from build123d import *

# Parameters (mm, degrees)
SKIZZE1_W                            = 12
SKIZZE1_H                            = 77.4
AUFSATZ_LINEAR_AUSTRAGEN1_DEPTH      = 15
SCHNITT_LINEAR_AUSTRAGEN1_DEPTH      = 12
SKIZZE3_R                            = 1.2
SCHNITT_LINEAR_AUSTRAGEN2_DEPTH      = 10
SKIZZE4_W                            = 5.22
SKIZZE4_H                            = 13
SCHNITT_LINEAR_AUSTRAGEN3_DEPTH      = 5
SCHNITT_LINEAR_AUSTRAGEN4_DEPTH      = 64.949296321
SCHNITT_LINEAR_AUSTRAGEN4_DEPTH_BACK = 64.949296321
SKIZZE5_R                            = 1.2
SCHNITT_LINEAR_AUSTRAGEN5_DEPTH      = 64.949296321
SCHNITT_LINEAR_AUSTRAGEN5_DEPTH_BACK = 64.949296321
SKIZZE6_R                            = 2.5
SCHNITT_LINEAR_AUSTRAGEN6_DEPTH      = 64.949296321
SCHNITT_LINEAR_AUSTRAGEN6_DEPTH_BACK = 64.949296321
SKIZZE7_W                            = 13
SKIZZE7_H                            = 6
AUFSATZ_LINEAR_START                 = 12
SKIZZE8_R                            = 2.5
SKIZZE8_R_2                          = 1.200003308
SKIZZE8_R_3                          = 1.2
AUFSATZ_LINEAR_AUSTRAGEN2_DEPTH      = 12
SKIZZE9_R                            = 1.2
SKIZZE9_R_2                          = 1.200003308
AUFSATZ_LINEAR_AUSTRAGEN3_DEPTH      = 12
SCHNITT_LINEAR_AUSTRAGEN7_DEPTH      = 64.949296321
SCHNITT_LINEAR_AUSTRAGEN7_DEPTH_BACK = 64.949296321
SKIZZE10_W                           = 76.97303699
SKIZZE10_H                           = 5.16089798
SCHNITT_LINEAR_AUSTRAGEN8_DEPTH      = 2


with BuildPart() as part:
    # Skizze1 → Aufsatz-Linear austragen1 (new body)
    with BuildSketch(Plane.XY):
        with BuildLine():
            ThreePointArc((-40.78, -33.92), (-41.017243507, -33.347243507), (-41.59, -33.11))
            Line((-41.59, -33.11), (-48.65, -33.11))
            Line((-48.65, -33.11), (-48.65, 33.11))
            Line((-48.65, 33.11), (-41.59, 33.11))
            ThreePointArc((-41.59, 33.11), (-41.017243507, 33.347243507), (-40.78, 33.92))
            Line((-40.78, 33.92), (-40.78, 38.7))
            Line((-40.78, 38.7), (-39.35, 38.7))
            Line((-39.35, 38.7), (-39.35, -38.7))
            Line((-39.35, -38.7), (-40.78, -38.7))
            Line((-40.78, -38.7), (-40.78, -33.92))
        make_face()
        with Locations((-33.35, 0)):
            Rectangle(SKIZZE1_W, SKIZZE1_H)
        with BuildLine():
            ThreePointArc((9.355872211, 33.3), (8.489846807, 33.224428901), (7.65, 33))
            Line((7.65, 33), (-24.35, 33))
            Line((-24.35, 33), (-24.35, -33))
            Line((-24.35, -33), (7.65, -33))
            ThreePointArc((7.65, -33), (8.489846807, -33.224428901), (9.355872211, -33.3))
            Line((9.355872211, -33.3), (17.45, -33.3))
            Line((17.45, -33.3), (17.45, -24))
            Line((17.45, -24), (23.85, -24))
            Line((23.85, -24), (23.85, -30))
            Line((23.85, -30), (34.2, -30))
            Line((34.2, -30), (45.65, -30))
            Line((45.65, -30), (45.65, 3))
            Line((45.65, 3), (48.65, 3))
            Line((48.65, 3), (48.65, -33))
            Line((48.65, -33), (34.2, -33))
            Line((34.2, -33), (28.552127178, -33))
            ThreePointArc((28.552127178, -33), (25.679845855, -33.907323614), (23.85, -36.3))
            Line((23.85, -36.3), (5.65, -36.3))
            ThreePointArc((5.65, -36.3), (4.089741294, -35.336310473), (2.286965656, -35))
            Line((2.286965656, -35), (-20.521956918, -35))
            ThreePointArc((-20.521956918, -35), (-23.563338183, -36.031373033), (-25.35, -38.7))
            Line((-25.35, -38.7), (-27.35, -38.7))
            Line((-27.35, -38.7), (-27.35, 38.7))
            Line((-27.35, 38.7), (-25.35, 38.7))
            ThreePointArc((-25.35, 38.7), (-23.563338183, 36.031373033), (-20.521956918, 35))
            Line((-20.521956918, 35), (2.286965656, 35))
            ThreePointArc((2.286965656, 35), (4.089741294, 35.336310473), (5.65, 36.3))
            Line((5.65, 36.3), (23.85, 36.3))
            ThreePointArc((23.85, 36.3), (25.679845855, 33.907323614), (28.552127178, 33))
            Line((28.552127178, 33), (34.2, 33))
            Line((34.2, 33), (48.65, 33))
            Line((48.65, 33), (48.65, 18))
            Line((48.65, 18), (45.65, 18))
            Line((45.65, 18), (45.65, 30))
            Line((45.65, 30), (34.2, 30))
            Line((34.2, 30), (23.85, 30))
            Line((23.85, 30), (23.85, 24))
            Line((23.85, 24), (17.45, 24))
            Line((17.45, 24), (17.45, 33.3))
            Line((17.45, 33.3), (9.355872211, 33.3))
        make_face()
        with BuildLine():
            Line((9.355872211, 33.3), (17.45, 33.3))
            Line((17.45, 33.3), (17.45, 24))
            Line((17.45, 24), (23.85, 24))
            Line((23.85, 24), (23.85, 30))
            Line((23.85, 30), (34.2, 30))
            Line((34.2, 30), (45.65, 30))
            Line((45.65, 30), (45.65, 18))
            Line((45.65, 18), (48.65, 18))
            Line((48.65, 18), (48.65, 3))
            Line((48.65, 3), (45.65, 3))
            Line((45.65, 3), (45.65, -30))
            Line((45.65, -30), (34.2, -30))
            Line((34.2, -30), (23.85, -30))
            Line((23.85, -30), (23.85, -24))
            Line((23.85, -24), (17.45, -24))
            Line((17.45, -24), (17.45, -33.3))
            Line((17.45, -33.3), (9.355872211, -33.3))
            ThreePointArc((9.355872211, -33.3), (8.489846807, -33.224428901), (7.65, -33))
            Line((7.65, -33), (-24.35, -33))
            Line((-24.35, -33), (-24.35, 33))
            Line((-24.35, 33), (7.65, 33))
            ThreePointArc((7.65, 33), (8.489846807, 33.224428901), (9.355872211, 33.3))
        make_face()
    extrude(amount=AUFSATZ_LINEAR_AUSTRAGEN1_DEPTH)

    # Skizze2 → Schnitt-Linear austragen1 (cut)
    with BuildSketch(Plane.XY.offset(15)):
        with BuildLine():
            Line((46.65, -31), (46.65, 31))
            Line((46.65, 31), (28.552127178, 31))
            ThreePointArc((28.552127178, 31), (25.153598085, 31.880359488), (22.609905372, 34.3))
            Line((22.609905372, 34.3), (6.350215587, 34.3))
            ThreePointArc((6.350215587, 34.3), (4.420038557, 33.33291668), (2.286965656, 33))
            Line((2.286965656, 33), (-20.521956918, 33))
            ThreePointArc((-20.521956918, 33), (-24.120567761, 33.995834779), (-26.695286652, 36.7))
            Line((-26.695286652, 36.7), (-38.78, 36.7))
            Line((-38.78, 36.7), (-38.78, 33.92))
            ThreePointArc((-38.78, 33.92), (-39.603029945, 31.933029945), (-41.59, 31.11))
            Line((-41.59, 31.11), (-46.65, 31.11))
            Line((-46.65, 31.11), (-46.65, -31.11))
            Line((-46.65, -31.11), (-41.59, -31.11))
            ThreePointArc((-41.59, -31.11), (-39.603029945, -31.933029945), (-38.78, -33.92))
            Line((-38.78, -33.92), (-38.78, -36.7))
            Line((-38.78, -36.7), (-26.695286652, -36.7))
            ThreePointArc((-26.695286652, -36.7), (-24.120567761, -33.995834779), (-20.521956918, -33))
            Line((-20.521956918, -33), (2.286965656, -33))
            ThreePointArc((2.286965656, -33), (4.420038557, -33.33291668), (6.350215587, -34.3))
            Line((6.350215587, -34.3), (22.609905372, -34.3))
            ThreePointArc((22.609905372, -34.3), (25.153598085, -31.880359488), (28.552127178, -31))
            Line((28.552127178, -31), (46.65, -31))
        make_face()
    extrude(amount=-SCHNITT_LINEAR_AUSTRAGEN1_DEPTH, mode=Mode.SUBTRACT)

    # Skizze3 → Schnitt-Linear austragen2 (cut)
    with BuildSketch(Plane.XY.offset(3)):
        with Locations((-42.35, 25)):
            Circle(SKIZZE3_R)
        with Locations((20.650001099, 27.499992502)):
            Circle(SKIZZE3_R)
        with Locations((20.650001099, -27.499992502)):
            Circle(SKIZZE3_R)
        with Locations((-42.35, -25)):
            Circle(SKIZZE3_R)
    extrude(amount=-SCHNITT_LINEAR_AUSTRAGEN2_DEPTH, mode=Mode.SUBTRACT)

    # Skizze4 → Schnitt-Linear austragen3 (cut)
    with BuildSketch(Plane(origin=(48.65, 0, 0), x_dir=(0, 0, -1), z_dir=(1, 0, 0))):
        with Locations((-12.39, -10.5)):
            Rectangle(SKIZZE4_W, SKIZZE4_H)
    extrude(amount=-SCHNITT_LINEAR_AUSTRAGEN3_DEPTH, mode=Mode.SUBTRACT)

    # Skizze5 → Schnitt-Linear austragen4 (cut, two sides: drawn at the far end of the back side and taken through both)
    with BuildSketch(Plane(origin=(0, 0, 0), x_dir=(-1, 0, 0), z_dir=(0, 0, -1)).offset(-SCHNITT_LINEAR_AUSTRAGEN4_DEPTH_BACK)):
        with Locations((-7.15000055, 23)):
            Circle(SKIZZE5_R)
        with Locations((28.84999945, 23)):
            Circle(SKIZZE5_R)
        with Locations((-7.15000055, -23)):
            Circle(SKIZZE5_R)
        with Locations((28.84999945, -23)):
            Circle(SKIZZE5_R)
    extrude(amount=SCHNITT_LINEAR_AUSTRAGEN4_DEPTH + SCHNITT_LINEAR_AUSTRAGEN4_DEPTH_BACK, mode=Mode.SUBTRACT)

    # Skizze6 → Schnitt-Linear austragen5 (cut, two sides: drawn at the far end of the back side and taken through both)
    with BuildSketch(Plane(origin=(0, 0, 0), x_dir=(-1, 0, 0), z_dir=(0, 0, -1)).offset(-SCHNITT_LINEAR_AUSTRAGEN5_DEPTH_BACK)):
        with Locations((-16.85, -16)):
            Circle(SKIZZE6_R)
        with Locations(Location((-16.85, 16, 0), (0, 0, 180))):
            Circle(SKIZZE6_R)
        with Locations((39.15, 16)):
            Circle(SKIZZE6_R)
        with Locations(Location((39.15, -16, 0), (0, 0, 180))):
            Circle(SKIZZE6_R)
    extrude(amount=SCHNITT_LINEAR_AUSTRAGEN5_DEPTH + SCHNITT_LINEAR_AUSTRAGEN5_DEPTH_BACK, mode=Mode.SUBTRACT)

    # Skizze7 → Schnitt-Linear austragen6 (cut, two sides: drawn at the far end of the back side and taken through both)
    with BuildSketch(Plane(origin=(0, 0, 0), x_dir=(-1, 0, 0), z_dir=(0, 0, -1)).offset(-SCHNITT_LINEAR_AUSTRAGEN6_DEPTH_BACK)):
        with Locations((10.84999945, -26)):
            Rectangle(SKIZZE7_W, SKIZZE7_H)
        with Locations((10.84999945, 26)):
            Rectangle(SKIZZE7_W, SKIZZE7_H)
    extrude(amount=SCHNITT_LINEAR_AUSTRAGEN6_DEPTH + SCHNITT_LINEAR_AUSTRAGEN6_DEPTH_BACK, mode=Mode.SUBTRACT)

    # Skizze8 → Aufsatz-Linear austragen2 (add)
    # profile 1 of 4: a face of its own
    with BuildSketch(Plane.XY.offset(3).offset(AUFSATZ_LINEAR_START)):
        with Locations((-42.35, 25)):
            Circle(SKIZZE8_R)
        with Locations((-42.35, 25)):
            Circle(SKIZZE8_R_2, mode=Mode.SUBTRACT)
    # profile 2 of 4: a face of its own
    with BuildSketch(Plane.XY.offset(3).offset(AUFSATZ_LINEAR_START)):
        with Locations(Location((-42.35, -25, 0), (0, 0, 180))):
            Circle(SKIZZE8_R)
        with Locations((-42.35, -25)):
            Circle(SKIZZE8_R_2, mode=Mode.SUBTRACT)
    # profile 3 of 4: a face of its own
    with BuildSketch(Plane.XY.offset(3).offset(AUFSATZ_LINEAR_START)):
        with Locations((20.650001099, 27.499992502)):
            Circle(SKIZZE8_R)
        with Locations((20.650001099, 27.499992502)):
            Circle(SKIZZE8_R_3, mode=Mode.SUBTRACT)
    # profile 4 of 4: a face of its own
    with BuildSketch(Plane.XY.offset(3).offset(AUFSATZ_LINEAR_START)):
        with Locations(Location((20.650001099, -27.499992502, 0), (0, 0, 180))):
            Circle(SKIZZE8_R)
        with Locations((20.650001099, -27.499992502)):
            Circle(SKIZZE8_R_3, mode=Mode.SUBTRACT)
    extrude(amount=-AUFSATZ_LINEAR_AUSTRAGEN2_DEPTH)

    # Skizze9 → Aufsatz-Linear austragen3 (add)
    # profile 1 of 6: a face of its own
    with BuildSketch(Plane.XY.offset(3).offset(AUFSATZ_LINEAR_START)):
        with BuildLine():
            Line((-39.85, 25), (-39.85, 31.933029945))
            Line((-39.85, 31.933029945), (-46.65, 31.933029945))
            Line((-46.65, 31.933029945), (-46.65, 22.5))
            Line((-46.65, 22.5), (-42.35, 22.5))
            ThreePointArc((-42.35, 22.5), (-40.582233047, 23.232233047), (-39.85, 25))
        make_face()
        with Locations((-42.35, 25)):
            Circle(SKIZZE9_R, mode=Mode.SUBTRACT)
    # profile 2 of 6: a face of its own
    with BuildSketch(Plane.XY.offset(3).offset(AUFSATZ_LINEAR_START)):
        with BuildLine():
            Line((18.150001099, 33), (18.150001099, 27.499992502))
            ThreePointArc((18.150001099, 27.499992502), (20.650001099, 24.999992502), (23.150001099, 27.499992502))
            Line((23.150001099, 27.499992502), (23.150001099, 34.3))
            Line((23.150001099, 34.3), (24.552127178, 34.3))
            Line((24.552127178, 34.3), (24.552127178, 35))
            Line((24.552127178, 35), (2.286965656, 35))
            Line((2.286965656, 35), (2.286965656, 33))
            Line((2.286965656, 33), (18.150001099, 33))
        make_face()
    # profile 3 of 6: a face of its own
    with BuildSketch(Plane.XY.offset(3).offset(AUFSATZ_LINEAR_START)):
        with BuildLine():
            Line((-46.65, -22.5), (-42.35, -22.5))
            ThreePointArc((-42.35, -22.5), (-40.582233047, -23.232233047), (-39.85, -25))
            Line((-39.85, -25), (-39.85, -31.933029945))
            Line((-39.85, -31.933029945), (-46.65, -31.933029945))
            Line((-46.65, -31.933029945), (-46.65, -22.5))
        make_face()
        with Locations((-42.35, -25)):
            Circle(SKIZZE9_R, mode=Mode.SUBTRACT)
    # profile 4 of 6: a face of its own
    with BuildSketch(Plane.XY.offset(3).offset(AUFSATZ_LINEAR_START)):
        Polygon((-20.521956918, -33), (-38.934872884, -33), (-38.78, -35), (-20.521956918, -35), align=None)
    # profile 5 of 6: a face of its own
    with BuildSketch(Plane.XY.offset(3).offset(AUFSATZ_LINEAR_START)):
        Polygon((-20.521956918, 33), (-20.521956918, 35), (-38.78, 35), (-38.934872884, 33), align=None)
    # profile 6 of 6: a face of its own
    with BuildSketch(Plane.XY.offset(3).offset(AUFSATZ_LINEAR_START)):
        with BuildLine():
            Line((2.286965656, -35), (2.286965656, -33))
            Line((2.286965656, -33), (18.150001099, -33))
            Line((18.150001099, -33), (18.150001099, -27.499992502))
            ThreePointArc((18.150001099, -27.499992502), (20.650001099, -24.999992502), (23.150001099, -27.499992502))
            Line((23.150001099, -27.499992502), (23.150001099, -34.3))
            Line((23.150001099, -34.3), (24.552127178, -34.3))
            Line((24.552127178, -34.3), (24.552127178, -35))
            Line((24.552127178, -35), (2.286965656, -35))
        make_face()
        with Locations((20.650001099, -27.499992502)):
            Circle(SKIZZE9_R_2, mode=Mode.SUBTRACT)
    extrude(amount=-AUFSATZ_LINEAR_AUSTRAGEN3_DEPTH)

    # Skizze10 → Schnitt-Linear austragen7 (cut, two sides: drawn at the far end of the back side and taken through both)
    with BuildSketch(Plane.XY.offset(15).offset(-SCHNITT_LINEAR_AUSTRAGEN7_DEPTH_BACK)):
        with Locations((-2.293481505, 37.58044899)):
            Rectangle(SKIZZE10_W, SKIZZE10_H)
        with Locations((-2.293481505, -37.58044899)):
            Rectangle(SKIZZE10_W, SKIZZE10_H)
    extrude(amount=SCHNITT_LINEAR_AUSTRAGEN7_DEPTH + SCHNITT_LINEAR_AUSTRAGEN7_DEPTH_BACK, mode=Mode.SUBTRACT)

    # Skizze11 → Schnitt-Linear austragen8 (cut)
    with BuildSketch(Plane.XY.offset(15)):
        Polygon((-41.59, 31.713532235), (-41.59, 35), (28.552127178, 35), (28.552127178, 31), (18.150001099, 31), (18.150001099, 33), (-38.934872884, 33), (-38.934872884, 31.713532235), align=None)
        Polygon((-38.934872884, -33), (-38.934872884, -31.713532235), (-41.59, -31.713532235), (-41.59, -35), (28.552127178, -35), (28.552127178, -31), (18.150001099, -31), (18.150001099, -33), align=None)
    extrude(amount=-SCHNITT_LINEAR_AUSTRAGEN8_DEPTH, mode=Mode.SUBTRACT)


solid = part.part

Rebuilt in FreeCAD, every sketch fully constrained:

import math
import FreeCAD as App
import Part
import Sketcher

V = App.Vector
Q = App.Units.Quantity


def add_polygon(sketch, points):
    """Adds a closed chain of lines whose ends are joined by coincident constraints."""
    first, n = sketch.GeometryCount, len(points)
    for a, b in zip(points, points[1:] + points[:1]):
        sketch.addGeometry(Part.LineSegment(App.Vector(*a, 0), App.Vector(*b, 0)), False)
    for i in range(n):
        sketch.addConstraint(Sketcher.Constraint("Coincident", first + i, 2, first + (i + 1) % n, 1))

doc = App.newDocument("Part")
body = doc.addObject("PartDesign::Body", "Body")

# Sketch on XY plane
sketch1 = body.newObject("Sketcher::SketchObject", "Sketch")
sketch1.AttachmentSupport = (doc.getObject("XY_Plane"), [""])
sketch1.MapMode = "FlatFace"
sketch1.addGeometry([
    Part.ArcOfCircle(Part.Circle(V(-41.6, -33.9, 0), V(0, 0, 1), 0.8), math.radians(0), math.radians(90)),  # 0
    Part.LineSegment(V(-40.8, -33.9, 0), V(-40.8, -38.7, 0)),  # 1
    Part.LineSegment(V(-40.8, -38.7, 0), V(-25.4, -38.7, 0)),  # 2
    Part.ArcOfCircle(Part.Circle(V(-20.5, -40, 0), V(0, 0, 1), 5), math.radians(90), math.radians(165)),  # 3
    Part.LineSegment(V(-20.5, -35, 0), V(2.3, -35, 0)),  # 4
    Part.ArcOfCircle(Part.Circle(V(2.3, -40, 0), V(0, 0, 1), 5), math.radians(48), math.radians(90)),  # 5
    Part.LineSegment(V(5.7, -36.3, 0), V(23.9, -36.3, 0)),  # 6
    Part.ArcOfCircle(Part.Circle(V(28.6, -38, 0), V(0, 0, 1), 5), math.radians(90), math.radians(160)),  # 7
    Part.LineSegment(V(28.6, -33, 0), V(48.6, -33, 0)),  # 8
    Part.LineSegment(V(48.6, -33, 0), V(48.6, 33, 0)),  # 9
    Part.LineSegment(V(48.6, 33, 0), V(28.6, 33, 0)),  # 10
    Part.ArcOfCircle(Part.Circle(V(28.6, 38, 0), V(0, 0, 1), 5), math.radians(-160), math.radians(-90)),  # 11
    Part.LineSegment(V(23.9, 36.3, 0), V(5.7, 36.3, 0)),  # 12
    Part.ArcOfCircle(Part.Circle(V(2.3, 40, 0), V(0, 0, 1), 5), math.radians(-90), math.radians(-48)),  # 13
    Part.LineSegment(V(2.3, 35, 0), V(-20.5, 35, 0)),  # 14
    Part.ArcOfCircle(Part.Circle(V(-20.5, 40, 0), V(0, 0, 1), 5), math.radians(-165), math.radians(-90)),  # 15
    Part.LineSegment(V(-25.4, 38.7, 0), V(-40.8, 38.7, 0)),  # 16
    Part.LineSegment(V(-40.8, 38.7, 0), V(-40.8, 33.9, 0)),  # 17
    Part.ArcOfCircle(Part.Circle(V(-41.6, 33.9, 0), V(0, 0, 1), 0.8), math.radians(-90), math.radians(0)),  # 18
    Part.LineSegment(V(-41.6, 33.1, 0), V(-48.6, 33.1, 0)),  # 19
    Part.LineSegment(V(-48.6, 33.1, 0), V(-48.6, -33.1, 0)),  # 20
    Part.LineSegment(V(-48.6, -33.1, 0), V(-41.6, -33.1, 0)),  # 21
], False)
sketch1.addConstraint([
    Sketcher.Constraint("Tangent", 0, 1, 1, 1),
    Sketcher.Constraint("Coincident", 1, 2, 2, 1),
    Sketcher.Constraint("Coincident", 2, 2, 3, 2),
    Sketcher.Constraint("Tangent", 3, 1, 4, 1),
    Sketcher.Constraint("Tangent", 4, 2, 5, 2),
    Sketcher.Constraint("Coincident", 5, 1, 6, 1),
    Sketcher.Constraint("Coincident", 6, 2, 7, 2),
    Sketcher.Constraint("Tangent", 7, 1, 8, 1),
    Sketcher.Constraint("Coincident", 8, 2, 9, 1),
    Sketcher.Constraint("Coincident", 9, 2, 10, 1),
    Sketcher.Constraint("Tangent", 10, 2, 11, 2),
    Sketcher.Constraint("Coincident", 11, 1, 12, 1),
    Sketcher.Constraint("Coincident", 12, 2, 13, 2),
    Sketcher.Constraint("Tangent", 13, 1, 14, 1),
    Sketcher.Constraint("Tangent", 14, 2, 15, 2),
    Sketcher.Constraint("Coincident", 15, 1, 16, 1),
    Sketcher.Constraint("Coincident", 16, 2, 17, 1),
    Sketcher.Constraint("Tangent", 17, 2, 18, 2),
    Sketcher.Constraint("Tangent", 18, 1, 19, 1),
    Sketcher.Constraint("Coincident", 19, 2, 20, 1),
    Sketcher.Constraint("Coincident", 20, 2, 21, 1),
    Sketcher.Constraint("Tangent", 21, 2, 0, 2),
    Sketcher.Constraint("Vertical", 1),
    Sketcher.Constraint("Horizontal", 2),
    Sketcher.Constraint("Horizontal", 4),
    Sketcher.Constraint("Horizontal", 6),
    Sketcher.Constraint("Horizontal", 8),
    Sketcher.Constraint("Vertical", 9),
    Sketcher.Constraint("Horizontal", 10),
    Sketcher.Constraint("Horizontal", 12),
    Sketcher.Constraint("Horizontal", 14),
    Sketcher.Constraint("Horizontal", 16),
    Sketcher.Constraint("Vertical", 17),
    Sketcher.Constraint("Horizontal", 19),
    Sketcher.Constraint("Vertical", 20),
    Sketcher.Constraint("Horizontal", 21),
    Sketcher.Constraint("Equal", 3, 5),
    Sketcher.Constraint("Equal", 5, 7),
    Sketcher.Constraint("Equal", 7, 11),
    Sketcher.Constraint("Equal", 11, 13),
    Sketcher.Constraint("Equal", 13, 15),
    Sketcher.Constraint("Equal", 0, 18),
    Sketcher.Constraint("Symmetric", 7, 3, 11, 3, -1),
    Sketcher.Constraint("Symmetric", 5, 3, 13, 3, -1),
    Sketcher.Constraint("Symmetric", 0, 3, 18, 3, -1),
    Sketcher.Constraint("Symmetric", 2, 2, 15, 1, -1),
    Sketcher.Constraint("Vertical", 6, 2, 11, 1),
    Sketcher.Constraint("Radius", 3, Q("5 mm")),
    Sketcher.Constraint("DistanceY", 9, 1, 9, 2, Q("66 mm")),
    Sketcher.Constraint("Radius", 0, Q("0.81 mm")),
    Sketcher.Constraint("DistanceX", 6, 1, 6, 2, Q("18.2 mm")),
    Sketcher.Constraint("DistanceY", 3, 3, -1, 1, Q("40 mm")),
    Sketcher.Constraint("DistanceX", 5, 1, 8, 2, Q("43 mm")),
    Sketcher.Constraint("DistanceX", 2, 1, 2, 2, Q("15.43 mm")),
    Sketcher.Constraint("DistanceX", 19, 2, 19, 1, Q("7.06 mm")),
    Sketcher.Constraint("DistanceY", 1, 2, 1, 1, Q("4.78 mm")),
    Sketcher.Constraint("DistanceY", 20, 2, 20, 1, Q("66.22 mm")),
    Sketcher.Constraint("DistanceY", 5, 1, -1, 1, Q("36.3 mm")),
    Sketcher.Constraint("DistanceX", 0, 3, -1, 1, Q("41.59 mm")),
    Sketcher.Constraint("DistanceX", -1, 1, 5, 1, Q("5.65 mm")),
])
pad1 = body.newObject("PartDesign::Pad", "Pad")
pad1.Profile = sketch1
pad1.Length = 15

# Sketch on XY plane
sketch2 = body.newObject("Sketcher::SketchObject", "Sketch001")
sketch2.AttachmentSupport = (doc.getObject("XY_Plane"), [""])
sketch2.MapMode = "FlatFace"
sketch2.AttachmentOffset = App.Placement(V(0, 0, 15), App.Rotation())
sketch2.addGeometry([
    Part.LineSegment(V(46.6, -31, 0), V(46.6, 31, 0)),  # 0
    Part.LineSegment(V(46.6, 31, 0), V(28.6, 31, 0)),  # 1
    Part.ArcOfCircle(Part.Circle(V(28.6, 38, 0), V(0, 0, 1), 7), math.radians(-148), math.radians(-90)),  # 2
    Part.LineSegment(V(22.6, 34.3, 0), V(6.4, 34.3, 0)),  # 3
    Part.ArcOfCircle(Part.Circle(V(2.3, 40, 0), V(0, 0, 1), 7), math.radians(-90), math.radians(-55)),  # 4
    Part.LineSegment(V(2.3, 33, 0), V(-20.5, 33, 0)),  # 5
    Part.ArcOfCircle(Part.Circle(V(-20.5, 40, 0), V(0, 0, 1), 7), math.radians(-152), math.radians(-90)),  # 6
    Part.LineSegment(V(-26.7, 36.7, 0), V(-38.8, 36.7, 0)),  # 7
    Part.LineSegment(V(-38.8, 36.7, 0), V(-38.8, 33.9, 0)),  # 8
    Part.ArcOfCircle(Part.Circle(V(-41.6, 33.9, 0), V(0, 0, 1), 2.8), math.radians(-90), math.radians(0)),  # 9
    Part.LineSegment(V(-41.6, 31.1, 0), V(-46.6, 31.1, 0)),  # 10
    Part.LineSegment(V(-46.6, 31.1, 0), V(-46.6, -31.1, 0)),  # 11
    Part.LineSegment(V(-46.6, -31.1, 0), V(-41.6, -31.1, 0)),  # 12
    Part.ArcOfCircle(Part.Circle(V(-41.6, -33.9, 0), V(0, 0, 1), 2.8), math.radians(0), math.radians(90)),  # 13
    Part.LineSegment(V(-38.8, -33.9, 0), V(-38.8, -36.7, 0)),  # 14
    Part.LineSegment(V(-38.8, -36.7, 0), V(-26.7, -36.7, 0)),  # 15
    Part.ArcOfCircle(Part.Circle(V(-20.5, -40, 0), V(0, 0, 1), 7), math.radians(90), math.radians(152)),  # 16
    Part.LineSegment(V(-20.5, -33, 0), V(2.3, -33, 0)),  # 17
    Part.ArcOfCircle(Part.Circle(V(2.3, -40, 0), V(0, 0, 1), 7), math.radians(55), math.radians(90)),  # 18
    Part.LineSegment(V(6.4, -34.3, 0), V(22.6, -34.3, 0)),  # 19
    Part.ArcOfCircle(Part.Circle(V(28.6, -38, 0), V(0, 0, 1), 7), math.radians(90), math.radians(148)),  # 20
    Part.LineSegment(V(28.6, -31, 0), V(46.6, -31, 0)),  # 21
], False)
sketch2.addConstraint([
    Sketcher.Constraint("Coincident", 0, 2, 1, 1),
    Sketcher.Constraint("Tangent", 1, 2, 2, 2),
    Sketcher.Constraint("Coincident", 2, 1, 3, 1),
    Sketcher.Constraint("Coincident", 3, 2, 4, 2),
    Sketcher.Constraint("Tangent", 4, 1, 5, 1),
    Sketcher.Constraint("Tangent", 5, 2, 6, 2),
    Sketcher.Constraint("Coincident", 6, 1, 7, 1),
    Sketcher.Constraint("Coincident", 7, 2, 8, 1),
    Sketcher.Constraint("Tangent", 8, 2, 9, 2),
    Sketcher.Constraint("Tangent", 9, 1, 10, 1),
    Sketcher.Constraint("Coincident", 10, 2, 11, 1),
    Sketcher.Constraint("Coincident", 11, 2, 12, 1),
    Sketcher.Constraint("Tangent", 12, 2, 13, 2),
    Sketcher.Constraint("Tangent", 13, 1, 14, 1),
    Sketcher.Constraint("Coincident", 14, 2, 15, 1),
    Sketcher.Constraint("Coincident", 15, 2, 16, 2),
    Sketcher.Constraint("Tangent", 16, 1, 17, 1),
    Sketcher.Constraint("Tangent", 17, 2, 18, 2),
    Sketcher.Constraint("Coincident", 18, 1, 19, 1),
    Sketcher.Constraint("Coincident", 19, 2, 20, 2),
    Sketcher.Constraint("Tangent", 20, 1, 21, 1),
    Sketcher.Constraint("Coincident", 21, 2, 0, 1),
    Sketcher.Constraint("Vertical", 0),
    Sketcher.Constraint("Horizontal", 1),
    Sketcher.Constraint("Horizontal", 3),
    Sketcher.Constraint("Horizontal", 5),
    Sketcher.Constraint("Horizontal", 7),
    Sketcher.Constraint("Vertical", 8),
    Sketcher.Constraint("Horizontal", 10),
    Sketcher.Constraint("Vertical", 11),
    Sketcher.Constraint("Horizontal", 12),
    Sketcher.Constraint("Vertical", 14),
    Sketcher.Constraint("Horizontal", 15),
    Sketcher.Constraint("Horizontal", 17),
    Sketcher.Constraint("Horizontal", 19),
    Sketcher.Constraint("Horizontal", 21),
    Sketcher.Constraint("Equal", 2, 4),
    Sketcher.Constraint("Equal", 4, 6),
    Sketcher.Constraint("Equal", 9, 13),
    Sketcher.Constraint("Equal", 6, 16),
    Sketcher.Constraint("Equal", 16, 18),
    Sketcher.Constraint("Equal", 18, 20),
    Sketcher.Constraint("Symmetric", 9, 3, 13, 3, -1),
    Sketcher.Constraint("Symmetric", 6, 3, 16, 3, -1),
    Sketcher.Constraint("Symmetric", 2, 3, 20, 3, -1),
    Sketcher.Constraint("Symmetric", 3, 2, 18, 1, -1),
    Sketcher.Constraint("Vertical", 6, 1, 15, 2),
    Sketcher.Constraint("Radius", 2, Q("7 mm")),
    Sketcher.Constraint("DistanceY", 0, 1, 0, 2, Q("62 mm")),
    Sketcher.Constraint("Radius", 9, Q("2.81 mm")),
    Sketcher.Constraint("DistanceY", -1, 1, 4, 3, Q("40 mm")),
    Sketcher.Constraint("DistanceX", 10, 2, 10, 1, Q("5.06 mm")),
    Sketcher.Constraint("DistanceY", 8, 2, 8, 1, Q("2.78 mm")),
    Sketcher.Constraint("DistanceY", 11, 2, 11, 1, Q("62.22 mm")),
    Sketcher.Constraint("DistanceY", -1, 1, 2, 1, Q("34.3 mm")),
    Sketcher.Constraint("DistanceX", 9, 3, -1, 1, Q("41.59 mm")),
    Sketcher.Constraint("DistanceX", -1, 1, 0, 2, Q("46.65 mm")),
    Sketcher.Constraint("DistanceX", 3, 2, 3, 1, Q("16.25969 mm")),
    Sketcher.Constraint("DistanceX", 1, 2, 1, 1, Q("18.097873 mm")),
    Sketcher.Constraint("DistanceX", 5, 2, 5, 1, Q("22.808923 mm")),
])
pocket1 = body.newObject("PartDesign::Pocket", "Pocket")
pocket1.Profile = sketch2
pocket1.Length = 12

# Sketch on XY plane
sketch3 = body.newObject("Sketcher::SketchObject", "Sketch002")
sketch3.AttachmentSupport = (doc.getObject("XY_Plane"), [""])
sketch3.MapMode = "FlatFace"
sketch3.AttachmentOffset = App.Placement(V(0, 0, 3), App.Rotation())
sketch3.addGeometry([
    Part.Circle(V(-42.4, 25, 0), V(0, 0, 1), 1.2),
    Part.Circle(V(20.7, 27.5, 0), V(0, 0, 1), 1.2),
    Part.Circle(V(20.7, -27.5, 0), V(0, 0, 1), 1.2),
    Part.Circle(V(-42.4, -25, 0), V(0, 0, 1), 1.2),
], False)
sketch3.addConstraint([
    Sketcher.Constraint("Equal", 0, 1),
    Sketcher.Constraint("Equal", 1, 2),
    Sketcher.Constraint("Equal", 2, 3),
    Sketcher.Constraint("Symmetric", 1, 3, 2, 3, -1),
    Sketcher.Constraint("Symmetric", 0, 3, 3, 3, -1),
    Sketcher.Constraint("Diameter", 0, Q("2.4 mm")),
    Sketcher.Constraint("DistanceY", -1, 1, 0, 3, Q("25 mm")),
    Sketcher.Constraint("DistanceX", 0, 3, 1, 3, Q("63.000001 mm")),
    Sketcher.Constraint("DistanceX", 0, 3, -1, 1, Q("42.35 mm")),
    Sketcher.Constraint("DistanceY", -1, 1, 1, 3, Q("27.499993 mm")),
])
pocket2 = body.newObject("PartDesign::Pocket", "Pocket001")
pocket2.Profile = sketch3
pocket2.Length = 10

# Sketch on YZ plane
sketch4 = body.newObject("Sketcher::SketchObject", "Sketch003")
sketch4.AttachmentSupport = (doc.getObject("YZ_Plane"), [""])
sketch4.MapMode = "FlatFace"
sketch4.AttachmentOffset = App.Placement(V(0, 0, 48.65), App.Rotation())
add_polygon(sketch4, [(-4, 15), (-17, 15), (-17, 10), (-4, 10)])  # lines 0-3
sketch4.addConstraint([
    Sketcher.Constraint("Horizontal", 0),
    Sketcher.Constraint("Vertical", 1),
    Sketcher.Constraint("Horizontal", 2),
    Sketcher.Constraint("Vertical", 3),
    Sketcher.Constraint("DistanceX", 0, 2, 0, 1, Q("13 mm")),
    Sketcher.Constraint("DistanceX", 0, 2, -1, 1, Q("17 mm")),
    Sketcher.Constraint("DistanceY", -1, 1, 0, 2, Q("15 mm")),
    Sketcher.Constraint("DistanceY", 1, 2, 1, 1, Q("5.22 mm")),
])
pocket3 = body.newObject("PartDesign::Pocket", "Pocket002")
pocket3.Profile = sketch4
pocket3.Length = 5

# Sketch on XY plane
sketch5 = body.newObject("Sketcher::SketchObject", "Sketch004")
sketch5.AttachmentSupport = (doc.getObject("XY_Plane"), [""])
sketch5.MapMode = "FlatFace"
sketch5.addGeometry([
    Part.Circle(V(7.2, 23, 0), V(0, 0, 1), 1.2),
    Part.Circle(V(-28.8, 23, 0), V(0, 0, 1), 1.2),
    Part.Circle(V(7.2, -23, 0), V(0, 0, 1), 1.2),
    Part.Circle(V(-28.8, -23, 0), V(0, 0, 1), 1.2),
], False)
sketch5.addConstraint([
    Sketcher.Constraint("Equal", 0, 1),
    Sketcher.Constraint("Equal", 1, 2),
    Sketcher.Constraint("Equal", 2, 3),
    Sketcher.Constraint("Symmetric", 0, 3, 2, 3, -1),
    Sketcher.Constraint("Symmetric", 1, 3, 3, 3, -1),
    Sketcher.Constraint("Horizontal", 0, 3, 1, 3),
    Sketcher.Constraint("Diameter", 0, Q("2.4 mm")),
    Sketcher.Constraint("DistanceY", -1, 1, 0, 3, Q("23 mm")),
    Sketcher.Constraint("DistanceX", 1, 3, 0, 3, Q("36 mm")),
    Sketcher.Constraint("DistanceX", -1, 1, 0, 3, Q("7.150001 mm")),
])
pocket4 = body.newObject("PartDesign::Pocket", "Pocket003")
pocket4.Profile = sketch5
pocket4.Type = "ThroughAll"
pocket4.Midplane = True

# Sketch on XY plane
sketch6 = body.newObject("Sketcher::SketchObject", "Sketch005")
sketch6.AttachmentSupport = (doc.getObject("XY_Plane"), [""])
sketch6.MapMode = "FlatFace"
sketch6.addGeometry([
    Part.Circle(V(16.9, -16, 0), V(0, 0, 1), 2.5),
    Part.Circle(V(16.9, 16, 0), V(0, 0, 1), 2.5),
    Part.Circle(V(-39.1, 16, 0), V(0, 0, 1), 2.5),
    Part.Circle(V(-39.1, -16, 0), V(0, 0, 1), 2.5),
], False)
sketch6.addConstraint([
    Sketcher.Constraint("Equal", 0, 1),
    Sketcher.Constraint("Equal", 1, 2),
    Sketcher.Constraint("Equal", 2, 3),
    Sketcher.Constraint("Symmetric", 0, 3, 1, 3, -1),
    Sketcher.Constraint("Symmetric", 2, 3, 3, 3, -1),
    Sketcher.Constraint("Horizontal", 1, 3, 2, 3),
    Sketcher.Constraint("Diameter", 0, Q("5 mm")),
    Sketcher.Constraint("DistanceY", 0, 3, -1, 1, Q("16 mm")),
    Sketcher.Constraint("DistanceX", 2, 3, 1, 3, Q("56 mm")),
    Sketcher.Constraint("DistanceX", -1, 1, 0, 3, Q("16.85 mm")),
])
pocket5 = body.newObject("PartDesign::Pocket", "Pocket004")
pocket5.Profile = sketch6
pocket5.Type = "ThroughAll"
pocket5.Midplane = True

# Sketch on XY plane
sketch7 = body.newObject("Sketcher::SketchObject", "Sketch006")
sketch7.AttachmentSupport = (doc.getObject("XY_Plane"), [""])
sketch7.MapMode = "FlatFace"
add_polygon(sketch7, [(-4, -23), (-4, -29), (-17, -29), (-17, -23)])  # lines 0-3
add_polygon(sketch7, [(-4, 29), (-4, 23), (-17, 23), (-17, 29)])  # lines 4-7
sketch7.addConstraint([
    Sketcher.Constraint("Vertical", 0),
    Sketcher.Constraint("Horizontal", 1),
    Sketcher.Constraint("Vertical", 2),
    Sketcher.Constraint("Horizontal", 3),
    Sketcher.Constraint("Vertical", 4),
    Sketcher.Constraint("Horizontal", 5),
    Sketcher.Constraint("Vertical", 6),
    Sketcher.Constraint("Horizontal", 7),
    Sketcher.Constraint("Symmetric", 3, 2, 4, 2, -1),
    Sketcher.Constraint("Symmetric", 1, 2, 6, 2, -1),
    Sketcher.Constraint("DistanceX", 1, 2, 1, 1, Q("13 mm")),
    Sketcher.Constraint("DistanceY", 0, 2, 0, 1, Q("6 mm")),
    Sketcher.Constraint("DistanceY", 0, 2, -1, 1, Q("29 mm")),
    Sketcher.Constraint("DistanceX", 0, 2, -1, 1, Q("4.349999 mm")),
])
pocket6 = body.newObject("PartDesign::Pocket", "Pocket005")
pocket6.Profile = sketch7
pocket6.Type = "ThroughAll"
pocket6.Midplane = True

# Sketch on XY plane
sketch8 = body.newObject("Sketcher::SketchObject", "Sketch007")
sketch8.AttachmentSupport = (doc.getObject("XY_Plane"), [""])
sketch8.MapMode = "FlatFace"
sketch8.AttachmentOffset = App.Placement(V(0, 0, 15), App.Rotation())
sketch8.addGeometry([
    Part.Circle(V(-42.4, 25, 0), V(0, 0, 1), 2.5),  # 0
    Part.Circle(V(-42.4, 25, 0), V(0, 0, 1), 1.2),  # 1
    Part.Circle(V(-42.4, -25, 0), V(0, 0, 1), 2.5),  # 2
    Part.Circle(V(-42.4, -25, 0), V(0, 0, 1), 1.2),  # 3
    Part.Circle(V(20.7, 27.5, 0), V(0, 0, 1), 2.5),  # 4
    Part.Circle(V(20.7, 27.5, 0), V(0, 0, 1), 1.2),  # 5
    Part.Circle(V(20.7, -27.5, 0), V(0, 0, 1), 2.5),  # 6
    Part.Circle(V(20.7, -27.5, 0), V(0, 0, 1), 1.2),  # 7
], False)
sketch8.addConstraint([
    Sketcher.Constraint("Coincident", 1, 3, 0, 3),
    Sketcher.Constraint("Coincident", 3, 3, 2, 3),
    Sketcher.Constraint("Coincident", 5, 3, 4, 3),
    Sketcher.Constraint("Coincident", 7, 3, 6, 3),
    Sketcher.Constraint("Equal", 0, 2),
    Sketcher.Constraint("Equal", 1, 3),
    Sketcher.Constraint("Equal", 2, 4),
    Sketcher.Constraint("Equal", 4, 6),
    Sketcher.Constraint("Equal", 5, 7),
    Sketcher.Constraint("Symmetric", 0, 3, 2, 3, -1),
    Sketcher.Constraint("Symmetric", 4, 3, 6, 3, -1),
    Sketcher.Constraint("Diameter", 0, Q("5 mm")),
    Sketcher.Constraint("Diameter", 5, Q("2.4 mm")),
    Sketcher.Constraint("DistanceY", -1, 1, 0, 3, Q("25 mm")),
    Sketcher.Constraint("DistanceX", 0, 3, 4, 3, Q("63.000001 mm")),
    Sketcher.Constraint("DistanceX", 0, 3, -1, 1, Q("42.35 mm")),
    Sketcher.Constraint("Diameter", 1, Q("2.400007 mm")),
    Sketcher.Constraint("DistanceY", -1, 1, 4, 3, Q("27.499993 mm")),
])
pad2 = body.newObject("PartDesign::Pad", "Pad001")
pad2.Profile = sketch8
pad2.Length = 12
pad2.Reversed = True

# Sketch on XY plane
sketch9 = body.newObject("Sketcher::SketchObject", "Sketch008")
sketch9.AttachmentSupport = (doc.getObject("XY_Plane"), [""])
sketch9.MapMode = "FlatFace"
sketch9.AttachmentOffset = App.Placement(V(0, 0, 15), App.Rotation())
sketch9.addGeometry(Part.LineSegment(V(-39.9, 25, 0), V(-39.9, 31.9, 0)), False)  # 0
sketch9.addGeometry(Part.LineSegment(V(-39.9, 31.9, 0), V(-46.6, 31.9, 0)), False)  # 1
sketch9.addGeometry(Part.LineSegment(V(-46.6, 31.9, 0), V(-46.6, 22.5, 0)), False)  # 2
sketch9.addGeometry(Part.LineSegment(V(-46.6, 22.5, 0), V(-42.4, 22.5, 0)), False)  # 3
sketch9.addGeometry(Part.ArcOfCircle(Part.Circle(V(-42.4, 25, 0), V(0, 0, 1), 2.5), math.radians(-90), math.radians(0)), False)  # 4
sketch9.addGeometry(Part.Circle(V(-42.4, 25, 0), V(0, 0, 1), 1.2), False)  # 5
sketch9.addGeometry(Part.LineSegment(V(18.2, 33, 0), V(18.2, 27.5, 0)), False)  # 6
sketch9.addGeometry(Part.ArcOfCircle(Part.Circle(V(20.7, 27.5, 0), V(0, 0, 1), 2.5), math.radians(180), math.radians(360)), False)  # 7
sketch9.addGeometry(Part.LineSegment(V(23.2, 27.5, 0), V(23.2, 34.3, 0)), False)  # 8
sketch9.addGeometry(Part.LineSegment(V(23.2, 34.3, 0), V(24.6, 34.3, 0)), False)  # 9
sketch9.addGeometry(Part.LineSegment(V(24.6, 34.3, 0), V(24.6, 35, 0)), False)  # 10
sketch9.addGeometry(Part.LineSegment(V(24.6, 35, 0), V(2.3, 35, 0)), False)  # 11
sketch9.addGeometry(Part.LineSegment(V(2.3, 35, 0), V(2.3, 33, 0)), False)  # 12
sketch9.addGeometry(Part.LineSegment(V(2.3, 33, 0), V(18.2, 33, 0)), False)  # 13
sketch9.addGeometry(Part.LineSegment(V(-42.4, -22.5, 0), V(-46.6, -22.5, 0)), False)  # 14
sketch9.addGeometry(Part.LineSegment(V(-46.6, -22.5, 0), V(-46.6, -31.9, 0)), False)  # 15
sketch9.addGeometry(Part.LineSegment(V(-46.6, -31.9, 0), V(-39.9, -31.9, 0)), False)  # 16
sketch9.addGeometry(Part.LineSegment(V(-39.9, -31.9, 0), V(-39.9, -25, 0)), False)  # 17
sketch9.addGeometry(Part.ArcOfCircle(Part.Circle(V(-42.4, -25, 0), V(0, 0, 1), 2.5), math.radians(0), math.radians(90)), False)  # 18
sketch9.addGeometry(Part.Circle(V(-42.4, -25, 0), V(0, 0, 1), 1.2), False)  # 19
add_polygon(sketch9, [(-20.5, -33), (-38.9, -33), (-38.8, -35), (-20.5, -35)])  # lines 20-23
add_polygon(sketch9, [(-20.5, 33), (-20.5, 35), (-38.8, 35), (-38.9, 33)])  # lines 24-27
sketch9.addGeometry(Part.LineSegment(V(2.3, -33, 0), V(2.3, -35, 0)), False)  # 28
sketch9.addGeometry(Part.LineSegment(V(2.3, -35, 0), V(24.6, -35, 0)), False)  # 29
sketch9.addGeometry(Part.LineSegment(V(24.6, -35, 0), V(24.6, -34.3, 0)), False)  # 30
sketch9.addGeometry(Part.LineSegment(V(24.6, -34.3, 0), V(23.2, -34.3, 0)), False)  # 31
sketch9.addGeometry(Part.LineSegment(V(23.2, -34.3, 0), V(23.2, -27.5, 0)), False)  # 32
sketch9.addGeometry(Part.ArcOfCircle(Part.Circle(V(20.7, -27.5, 0), V(0, 0, 1), 2.5), math.radians(0), math.radians(180)), False)  # 33
sketch9.addGeometry(Part.LineSegment(V(18.2, -27.5, 0), V(18.2, -33, 0)), False)  # 34
sketch9.addGeometry(Part.LineSegment(V(18.2, -33, 0), V(2.3, -33, 0)), False)  # 35
sketch9.addGeometry(Part.Circle(V(20.7, -27.5, 0), V(0, 0, 1), 1.2), False)  # 36
sketch9.addConstraint([
    Sketcher.Constraint("Coincident", 0, 2, 1, 1),
    Sketcher.Constraint("Coincident", 1, 2, 2, 1),
    Sketcher.Constraint("Coincident", 2, 2, 3, 1),
    Sketcher.Constraint("Tangent", 3, 2, 4, 1),
    Sketcher.Constraint("Tangent", 4, 2, 0, 1),
    Sketcher.Constraint("Tangent", 6, 2, 7, 1),
    Sketcher.Constraint("Tangent", 7, 2, 8, 1),
    Sketcher.Constraint("Coincident", 8, 2, 9, 1),
    Sketcher.Constraint("Coincident", 9, 2, 10, 1),
    Sketcher.Constraint("Coincident", 10, 2, 11, 1),
    Sketcher.Constraint("Coincident", 11, 2, 12, 1),
    Sketcher.Constraint("Coincident", 12, 2, 13, 1),
    Sketcher.Constraint("Coincident", 13, 2, 6, 1),
    Sketcher.Constraint("Coincident", 14, 2, 15, 1),
    Sketcher.Constraint("Coincident", 15, 2, 16, 1),
    Sketcher.Constraint("Coincident", 16, 2, 17, 1),
    Sketcher.Constraint("Tangent", 17, 2, 18, 1),
    Sketcher.Constraint("Tangent", 18, 2, 14, 1),
    Sketcher.Constraint("Coincident", 28, 2, 29, 1),
    Sketcher.Constraint("Coincident", 29, 2, 30, 1),
    Sketcher.Constraint("Coincident", 30, 2, 31, 1),
    Sketcher.Constraint("Coincident", 31, 2, 32, 1),
    Sketcher.Constraint("Tangent", 32, 2, 33, 1),
    Sketcher.Constraint("Tangent", 33, 2, 34, 1),
    Sketcher.Constraint("Coincident", 34, 2, 35, 1),
    Sketcher.Constraint("Coincident", 35, 2, 28, 1),
    Sketcher.Constraint("Vertical", 0),
    Sketcher.Constraint("Horizontal", 1),
    Sketcher.Constraint("Vertical", 2),
    Sketcher.Constraint("Horizontal", 3),
    Sketcher.Constraint("Vertical", 6),
    Sketcher.Constraint("Vertical", 8),
    Sketcher.Constraint("Horizontal", 9),
    Sketcher.Constraint("Vertical", 10),
    Sketcher.Constraint("Horizontal", 11),
    Sketcher.Constraint("Vertical", 12),
    Sketcher.Constraint("Horizontal", 13),
    Sketcher.Constraint("Horizontal", 14),
    Sketcher.Constraint("Vertical", 15),
    Sketcher.Constraint("Horizontal", 16),
    Sketcher.Constraint("Vertical", 17),
    Sketcher.Constraint("Horizontal", 20),
    Sketcher.Constraint("Horizontal", 22),
    Sketcher.Constraint("Vertical", 23),
    Sketcher.Constraint("Vertical", 24),
    Sketcher.Constraint("Horizontal", 25),
    Sketcher.Constraint("Horizontal", 27),
    Sketcher.Constraint("Vertical", 28),
    Sketcher.Constraint("Horizontal", 29),
    Sketcher.Constraint("Vertical", 30),
    Sketcher.Constraint("Horizontal", 31),
    Sketcher.Constraint("Vertical", 32),
    Sketcher.Constraint("Vertical", 34),
    Sketcher.Constraint("Horizontal", 35),
    Sketcher.Constraint("Coincident", 5, 3, 4, 3),
    Sketcher.Constraint("Coincident", 19, 3, 18, 3),
    Sketcher.Constraint("Coincident", 36, 3, 33, 3),
    Sketcher.Constraint("Equal", 4, 7),
    Sketcher.Constraint("Equal", 7, 18),
    Sketcher.Constraint("Equal", 5, 19),
    Sketcher.Constraint("Equal", 18, 33),
    Sketcher.Constraint("Symmetric", 4, 3, 18, 3, -1),
    Sketcher.Constraint("Symmetric", 7, 3, 33, 3, -1),
    Sketcher.Constraint("Symmetric", 1, 2, 15, 2, -1),
    Sketcher.Constraint("Symmetric", 22, 2, 24, 2, -1),
    Sketcher.Constraint("Symmetric", 20, 2, 26, 2, -1),
    Sketcher.Constraint("Symmetric", 11, 2, 28, 2, -1),
    Sketcher.Constraint("Symmetric", 9, 2, 30, 2, -1),
    Sketcher.Constraint("Horizontal", 11, 2, 24, 2),
    Sketcher.Constraint("Horizontal", 13, 2, 26, 2),
    Sketcher.Constraint("Horizontal", 23, 2, 34, 2),
    Sketcher.Constraint("Vertical", 21, 2, 25, 2),
    Sketcher.Constraint("Diameter", 5, Q("2.4 mm")),
    Sketcher.Constraint("Radius", 4, Q("2.5 mm")),
    Sketcher.Constraint("DistanceY", 12, 2, 12, 1, Q("2 mm")),
    Sketcher.Constraint("DistanceX", 1, 2, 1, 1, Q("6.8 mm")),
    Sketcher.Constraint("DistanceY", 10, 1, 10, 2, Q("0.7 mm")),
    Sketcher.Constraint("DistanceY", -1, 1, 4, 3, Q("25 mm")),
    Sketcher.Constraint("DistanceY", -1, 1, 10, 2, Q("35 mm")),
    Sketcher.Constraint("DistanceX", 4, 3, 7, 3, Q("63.000001 mm")),
    Sketcher.Constraint("DistanceX", 4, 3, -1, 1, Q("42.35 mm")),
    Sketcher.Constraint("DistanceX", 21, 2, -1, 1, Q("38.78 mm")),
    Sketcher.Constraint("Diameter", 36, Q("2.400007 mm")),
    Sketcher.Constraint("DistanceX", 11, 2, 11, 1, Q("22.265162 mm")),
    Sketcher.Constraint("DistanceY", 0, 1, 0, 2, Q("6.93303 mm")),
    Sketcher.Constraint("DistanceX", 9, 1, 9, 2, Q("1.402126 mm")),
    Sketcher.Constraint("DistanceX", 20, 2, 20, 1, Q("18.412916 mm")),
    Sketcher.Constraint("DistanceX", 22, 1, 22, 2, Q("18.258043 mm")),
    Sketcher.Constraint("DistanceY", 6, 2, 6, 1, Q("5.500007 mm")),
])
pad3 = body.newObject("PartDesign::Pad", "Pad002")
pad3.Profile = sketch9
pad3.Length = 12
pad3.Reversed = True

# Sketch on XY plane
sketch10 = body.newObject("Sketcher::SketchObject", "Sketch009")
sketch10.AttachmentSupport = (doc.getObject("XY_Plane"), [""])
sketch10.MapMode = "FlatFace"
sketch10.AttachmentOffset = App.Placement(V(0, 0, 15), App.Rotation())
add_polygon(sketch10, [(-41, 40), (-41, 35), (36, 35), (36, 40)])  # lines 0-3
add_polygon(sketch10, [(-41, -35), (-41, -40), (36, -40), (36, -35)])  # lines 4-7
sketch10.addConstraint([
    Sketcher.Constraint("Vertical", 0),
    Sketcher.Constraint("Horizontal", 1),
    Sketcher.Constraint("Vertical", 2),
    Sketcher.Constraint("Horizontal", 3),
    Sketcher.Constraint("Vertical", 4),
    Sketcher.Constraint("Horizontal", 5),
    Sketcher.Constraint("Vertical", 6),
    Sketcher.Constraint("Horizontal", 7),
    Sketcher.Constraint("Symmetric", 3, 2, 4, 2, -1),
    Sketcher.Constraint("Symmetric", 1, 2, 6, 2, -1),
    Sketcher.Constraint("DistanceY", -1, 1, 0, 2, Q("35 mm")),
    Sketcher.Constraint("DistanceX", 0, 2, -1, 1, Q("40.78 mm")),
    Sketcher.Constraint("DistanceX", 1, 1, 1, 2, Q("76.973037 mm")),
    Sketcher.Constraint("DistanceY", 0, 2, 0, 1, Q("5.160898 mm")),
])
pocket7 = body.newObject("PartDesign::Pocket", "Pocket006")
pocket7.Profile = sketch10
pocket7.Type = "ThroughAll"
pocket7.Midplane = True

# Sketch on XY plane
sketch11 = body.newObject("Sketcher::SketchObject", "Sketch010")
sketch11.AttachmentSupport = (doc.getObject("XY_Plane"), [""])
sketch11.MapMode = "FlatFace"
sketch11.AttachmentOffset = App.Placement(V(0, 0, 15), App.Rotation())
add_polygon(sketch11, [(-41.6, 35), (-41.6, 31.7), (-38.9, 31.7), (-38.9, 33), (18.2, 33), (18.2, 31), (28.6, 31), (28.6, 35)])  # lines 0-7
add_polygon(sketch11, [(-38.9, -33), (-38.9, -31.7), (-41.6, -31.7), (-41.6, -35), (28.6, -35), (28.6, -31), (18.2, -31), (18.2, -33)])  # lines 8-15
sketch11.addConstraint([
    Sketcher.Constraint("Vertical", 0),
    Sketcher.Constraint("Horizontal", 1),
    Sketcher.Constraint("Vertical", 2),
    Sketcher.Constraint("Horizontal", 3),
    Sketcher.Constraint("Vertical", 4),
    Sketcher.Constraint("Horizontal", 5),
    Sketcher.Constraint("Vertical", 6),
    Sketcher.Constraint("Horizontal", 7),
    Sketcher.Constraint("Vertical", 8),
    Sketcher.Constraint("Horizontal", 9),
    Sketcher.Constraint("Vertical", 10),
    Sketcher.Constraint("Horizontal", 11),
    Sketcher.Constraint("Vertical", 12),
    Sketcher.Constraint("Horizontal", 13),
    Sketcher.Constraint("Vertical", 14),
    Sketcher.Constraint("Horizontal", 15),
    Sketcher.Constraint("Symmetric", 1, 2, 8, 2, -1),
    Sketcher.Constraint("Symmetric", 7, 2, 10, 2, -1),
    Sketcher.Constraint("Symmetric", 5, 2, 12, 2, -1),
    Sketcher.Constraint("Symmetric", 3, 2, 14, 2, -1),
    Sketcher.Constraint("DistanceY", 4, 2, 4, 1, Q("2 mm")),
    Sketcher.Constraint("DistanceY", 6, 1, 6, 2, Q("4 mm")),
    Sketcher.Constraint("DistanceY", -1, 1, 2, 2, Q("33 mm")),
    Sketcher.Constraint("DistanceX", 0, 2, -1, 1, Q("41.59 mm")),
    Sketcher.Constraint("DistanceX", -1, 1, 3, 2, Q("18.150001 mm")),
    Sketcher.Constraint("DistanceX", 1, 2, 5, 2, Q("67.487 mm")),
    Sketcher.Constraint("DistanceX", 1, 1, 1, 2, Q("2.655127 mm")),
    Sketcher.Constraint("DistanceY", 0, 2, 0, 1, Q("3.286468 mm")),
])
pocket8 = body.newObject("PartDesign::Pocket", "Pocket007")
pocket8.Profile = sketch11
pocket8.Length = 2

doc.recompute()
